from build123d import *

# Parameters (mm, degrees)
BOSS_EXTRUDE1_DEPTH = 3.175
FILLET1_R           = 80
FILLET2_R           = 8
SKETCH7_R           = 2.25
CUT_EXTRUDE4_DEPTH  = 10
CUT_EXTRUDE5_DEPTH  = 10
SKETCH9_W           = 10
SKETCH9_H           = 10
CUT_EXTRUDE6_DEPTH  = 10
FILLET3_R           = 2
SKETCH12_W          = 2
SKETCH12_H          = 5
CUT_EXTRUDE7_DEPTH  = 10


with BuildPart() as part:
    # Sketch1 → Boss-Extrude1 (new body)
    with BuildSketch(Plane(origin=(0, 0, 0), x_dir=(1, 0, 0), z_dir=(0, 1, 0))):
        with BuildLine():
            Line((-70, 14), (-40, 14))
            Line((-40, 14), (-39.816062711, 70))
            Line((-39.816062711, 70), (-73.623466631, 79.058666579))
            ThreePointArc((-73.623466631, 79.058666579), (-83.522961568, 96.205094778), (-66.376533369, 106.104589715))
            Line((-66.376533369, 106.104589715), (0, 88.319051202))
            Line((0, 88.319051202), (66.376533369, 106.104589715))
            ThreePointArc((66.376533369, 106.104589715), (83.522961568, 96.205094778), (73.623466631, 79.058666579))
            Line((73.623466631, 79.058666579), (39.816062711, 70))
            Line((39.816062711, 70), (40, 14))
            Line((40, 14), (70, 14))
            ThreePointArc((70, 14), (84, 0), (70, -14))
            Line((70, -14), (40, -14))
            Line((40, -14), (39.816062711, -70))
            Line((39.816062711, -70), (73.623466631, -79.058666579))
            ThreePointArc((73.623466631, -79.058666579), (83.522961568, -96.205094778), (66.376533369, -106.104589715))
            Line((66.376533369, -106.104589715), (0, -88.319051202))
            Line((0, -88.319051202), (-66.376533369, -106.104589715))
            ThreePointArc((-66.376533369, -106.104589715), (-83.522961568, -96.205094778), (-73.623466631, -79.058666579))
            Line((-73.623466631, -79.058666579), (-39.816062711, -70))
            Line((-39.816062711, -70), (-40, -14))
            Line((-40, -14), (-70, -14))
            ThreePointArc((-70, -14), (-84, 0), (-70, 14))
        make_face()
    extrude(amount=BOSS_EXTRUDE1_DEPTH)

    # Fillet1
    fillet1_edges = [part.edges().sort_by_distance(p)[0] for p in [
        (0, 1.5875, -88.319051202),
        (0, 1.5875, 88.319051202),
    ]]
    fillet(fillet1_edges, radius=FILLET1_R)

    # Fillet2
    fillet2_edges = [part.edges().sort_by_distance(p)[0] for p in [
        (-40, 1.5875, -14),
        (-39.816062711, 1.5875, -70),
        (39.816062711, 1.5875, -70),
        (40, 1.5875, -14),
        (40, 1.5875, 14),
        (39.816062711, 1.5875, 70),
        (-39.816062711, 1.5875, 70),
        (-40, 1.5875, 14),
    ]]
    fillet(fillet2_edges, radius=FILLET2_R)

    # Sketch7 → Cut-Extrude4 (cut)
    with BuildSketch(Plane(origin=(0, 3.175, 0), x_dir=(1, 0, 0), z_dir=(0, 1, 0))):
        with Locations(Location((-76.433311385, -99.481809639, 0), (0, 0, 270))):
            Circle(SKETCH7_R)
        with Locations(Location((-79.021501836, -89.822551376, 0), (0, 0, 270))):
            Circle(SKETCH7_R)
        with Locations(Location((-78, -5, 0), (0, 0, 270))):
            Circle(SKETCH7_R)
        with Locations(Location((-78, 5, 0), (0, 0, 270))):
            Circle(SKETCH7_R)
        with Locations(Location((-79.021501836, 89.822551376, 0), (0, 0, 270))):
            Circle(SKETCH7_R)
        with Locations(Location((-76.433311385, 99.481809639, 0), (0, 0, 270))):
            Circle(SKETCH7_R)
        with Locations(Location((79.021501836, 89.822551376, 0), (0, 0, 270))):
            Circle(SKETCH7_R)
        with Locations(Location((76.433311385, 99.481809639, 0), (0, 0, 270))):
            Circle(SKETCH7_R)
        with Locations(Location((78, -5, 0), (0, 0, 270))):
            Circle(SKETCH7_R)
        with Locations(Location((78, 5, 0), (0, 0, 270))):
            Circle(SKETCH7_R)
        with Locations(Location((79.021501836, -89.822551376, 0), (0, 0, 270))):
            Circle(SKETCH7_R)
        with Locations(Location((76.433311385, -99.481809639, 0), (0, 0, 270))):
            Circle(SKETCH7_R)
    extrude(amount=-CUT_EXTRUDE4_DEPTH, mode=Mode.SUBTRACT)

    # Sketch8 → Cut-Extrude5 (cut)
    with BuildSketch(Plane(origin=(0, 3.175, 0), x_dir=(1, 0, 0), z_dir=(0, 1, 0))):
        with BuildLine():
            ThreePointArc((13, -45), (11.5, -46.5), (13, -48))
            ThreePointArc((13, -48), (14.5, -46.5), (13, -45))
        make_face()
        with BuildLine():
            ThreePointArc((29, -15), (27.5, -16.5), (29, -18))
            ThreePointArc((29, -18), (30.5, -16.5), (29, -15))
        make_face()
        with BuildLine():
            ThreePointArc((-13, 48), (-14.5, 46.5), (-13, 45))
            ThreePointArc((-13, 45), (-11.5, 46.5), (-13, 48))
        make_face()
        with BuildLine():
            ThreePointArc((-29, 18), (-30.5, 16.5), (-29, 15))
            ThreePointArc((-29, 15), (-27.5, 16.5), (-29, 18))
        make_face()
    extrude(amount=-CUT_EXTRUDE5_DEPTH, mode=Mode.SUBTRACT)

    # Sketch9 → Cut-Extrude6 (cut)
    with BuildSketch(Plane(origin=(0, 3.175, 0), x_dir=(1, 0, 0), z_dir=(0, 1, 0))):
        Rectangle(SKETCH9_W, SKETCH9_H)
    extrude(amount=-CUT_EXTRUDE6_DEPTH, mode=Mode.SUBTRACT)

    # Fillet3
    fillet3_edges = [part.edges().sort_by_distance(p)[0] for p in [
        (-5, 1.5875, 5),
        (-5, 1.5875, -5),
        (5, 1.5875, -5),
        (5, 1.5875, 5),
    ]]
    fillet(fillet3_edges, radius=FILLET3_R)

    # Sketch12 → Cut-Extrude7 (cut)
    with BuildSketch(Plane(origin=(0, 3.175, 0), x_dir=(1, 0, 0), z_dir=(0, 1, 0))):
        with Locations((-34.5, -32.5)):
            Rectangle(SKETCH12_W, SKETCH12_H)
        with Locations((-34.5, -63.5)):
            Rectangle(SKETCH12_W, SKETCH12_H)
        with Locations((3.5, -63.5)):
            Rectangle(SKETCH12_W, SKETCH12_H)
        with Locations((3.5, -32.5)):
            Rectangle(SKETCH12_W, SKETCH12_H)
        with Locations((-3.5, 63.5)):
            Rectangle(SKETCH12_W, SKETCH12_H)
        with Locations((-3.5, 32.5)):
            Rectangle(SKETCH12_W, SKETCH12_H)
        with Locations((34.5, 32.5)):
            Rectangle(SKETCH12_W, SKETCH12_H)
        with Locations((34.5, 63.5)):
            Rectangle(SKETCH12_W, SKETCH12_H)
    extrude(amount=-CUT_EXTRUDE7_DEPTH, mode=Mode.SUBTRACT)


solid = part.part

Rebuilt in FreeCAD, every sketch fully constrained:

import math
import FreeCAD as App
import Part
import Sketcher
Q = App.Units.Quantity


def edges_at(feature, points):
    """Names of the edges that pass closest to the given points."""
    edges = feature.Shape.Edges
    near = lambda p: min(range(len(edges)), key=lambda i: edges[i].distToShape(Part.Vertex(*p))[0])
    return sorted({f"Edge{near(p) + 1}" for p in points})

doc = App.newDocument("Part")
params = doc.addObject("Spreadsheet::Sheet", "Params")
for row, (alias, value) in enumerate([
    ("sketch1_radius", "14 mm"),
    ("sketch1_width", "30 mm"),
    ("sketch1_length", "35 mm"),
    ("pad1_length", "3.175 mm"),
    ("fillet_radius", "80 mm"),
    ("fillet2_radius", "8 mm"),
    ("sketch2_diameter", "4.5 mm"),
    ("pocket1_length", "10 mm"),
    ("sketch3_diameter", "3 mm"),
    ("pocket2_length", "10 mm"),
    ("sketch4_width", "10 mm"),
    ("pocket3_length", "10 mm"),
    ("fillet3_radius", "2 mm"),
    ("sketch5_width", "2 mm"),
    ("sketch5_height", "5 mm"),
    ("pocket4_length", "10 mm"),
], start=1):
    params.set(f"A{row}", alias)
    params.set(f"B{row}", "=" + value)
    params.setAlias(f"B{row}", alias)

body = doc.addObject("PartDesign::Body", "Body")

# Sketch on XZ plane
sketch1 = doc.addObject("Sketcher::SketchObject", "Sketch")
body.addObject(sketch1)
sketch1.AttachmentSupport = (doc.XZ_Plane, [""])
sketch1.MapMode = "FlatFace"
sketch1.addGeometry(Part.LineSegment(App.Vector(-40, -14, 0), App.Vector(-70, -14, 0)), False)
sketch1.addGeometry(Part.ArcOfCircle(Part.Circle(App.Vector(-70, 0, 0), App.Vector(0, 0, 1), 14), math.radians(90), math.radians(270)), False)
sketch1.addGeometry(Part.LineSegment(App.Vector(-70, 14, 0), App.Vector(-40, 14, 0)), False)
sketch1.addGeometry(Part.LineSegment(App.Vector(-40, 14, 0), App.Vector(-39.816063, 70, 0)), False)
sketch1.addGeometry(Part.LineSegment(App.Vector(-39.816063, 70, 0), App.Vector(-73.623467, 79.058667, 0)), False)
sketch1.addGeometry(Part.ArcOfCircle(Part.Circle(App.Vector(-70, 92.581628, 0), App.Vector(0, 0, 1), 14), math.radians(75), math.radians(255)), False)
sketch1.addGeometry(Part.LineSegment(App.Vector(-66.376533, 106.10459, 0), App.Vector(0, 88.319051, 0)), False)
sketch1.addGeometry(Part.LineSegment(App.Vector(0, 88.319051, 0), App.Vector(66.376533, 106.10459, 0)), False)
sketch1.addGeometry(Part.ArcOfCircle(Part.Circle(App.Vector(70, 92.581628, 0), App.Vector(0, 0, 1), 14), math.radians(-75), math.radians(105)), False)
sketch1.addGeometry(Part.LineSegment(App.Vector(73.623467, 79.058667, 0), App.Vector(39.816063, 70, 0)), False)
sketch1.addGeometry(Part.LineSegment(App.Vector(39.816063, 70, 0), App.Vector(40, 14, 0)), False)
sketch1.addGeometry(Part.LineSegment(App.Vector(40, 14, 0), App.Vector(70, 14, 0)), False)
sketch1.addGeometry(Part.ArcOfCircle(Part.Circle(App.Vector(70, 0, 0), App.Vector(0, 0, 1), 14), math.radians(-90), math.radians(90)), False)
sketch1.addGeometry(Part.LineSegment(App.Vector(70, -14, 0), App.Vector(40, -14, 0)), False)
sketch1.addGeometry(Part.LineSegment(App.Vector(40, -14, 0), App.Vector(39.816063, -70, 0)), False)
sketch1.addGeometry(Part.LineSegment(App.Vector(39.816063, -70, 0), App.Vector(73.623467, -79.058667, 0)), False)
sketch1.addGeometry(Part.ArcOfCircle(Part.Circle(App.Vector(70, -92.581628, 0), App.Vector(0, 0, 1), 14), math.radians(-105), math.radians(75)), False)
sketch1.addGeometry(Part.LineSegment(App.Vector(66.376533, -106.10459, 0), App.Vector(0, -88.319051, 0)), False)
sketch1.addGeometry(Part.LineSegment(App.Vector(0, -88.319051, 0), App.Vector(-66.376533, -106.10459, 0)), False)
sketch1.addGeometry(Part.ArcOfCircle(Part.Circle(App.Vector(-70, -92.581628, 0), App.Vector(0, 0, 1), 14), math.radians(105), math.radians(285)), False)
sketch1.addGeometry(Part.LineSegment(App.Vector(-73.623467, -79.058667, 0), App.Vector(-39.816063, -70, 0)), False)
sketch1.addGeometry(Part.LineSegment(App.Vector(-39.816063, -70, 0), App.Vector(-40, -14, 0)), False)
sketch1.addConstraint(Sketcher.Constraint("Tangent", 0, 2, 1, 2))
sketch1.addConstraint(Sketcher.Constraint("Tangent", 1, 1, 2, 1))
sketch1.addConstraint(Sketcher.Constraint("Coincident", 2, 2, 3, 1))
sketch1.addConstraint(Sketcher.Constraint("Coincident", 3, 2, 4, 1))
sketch1.addConstraint(Sketcher.Constraint("Tangent", 4, 2, 5, 2))
sketch1.addConstraint(Sketcher.Constraint("Tangent", 5, 1, 6, 1))
sketch1.addConstraint(Sketcher.Constraint("Coincident", 6, 2, 7, 1))
sketch1.addConstraint(Sketcher.Constraint("Tangent", 7, 2, 8, 2))
sketch1.addConstraint(Sketcher.Constraint("Tangent", 8, 1, 9, 1))
sketch1.addConstraint(Sketcher.Constraint("Coincident", 9, 2, 10, 1))
sketch1.addConstraint(Sketcher.Constraint("Coincident", 10, 2, 11, 1))
sketch1.addConstraint(Sketcher.Constraint("Tangent", 11, 2, 12, 2))
sketch1.addConstraint(Sketcher.Constraint("Tangent", 12, 1, 13, 1))
sketch1.addConstraint(Sketcher.Constraint("Coincident", 13, 2, 14, 1))
sketch1.addConstraint(Sketcher.Constraint("Coincident", 14, 2, 15, 1))
sketch1.addConstraint(Sketcher.Constraint("Tangent", 15, 2, 16, 2))
sketch1.addConstraint(Sketcher.Constraint("Tangent", 16, 1, 17, 1))
sketch1.addConstraint(Sketcher.Constraint("Coincident", 17, 2, 18, 1))
sketch1.addConstraint(Sketcher.Constraint("Tangent", 18, 2, 19, 2))
sketch1.addConstraint(Sketcher.Constraint("Tangent", 19, 1, 20, 1))
sketch1.addConstraint(Sketcher.Constraint("Coincident", 20, 2, 21, 1))
sketch1.addConstraint(Sketcher.Constraint("Coincident", 21, 2, 0, 1))
sketch1.addConstraint(Sketcher.Constraint("Horizontal", 0))
sketch1.addConstraint(Sketcher.Constraint("Horizontal", 2))
sketch1.addConstraint(Sketcher.Constraint("Horizontal", 11))
sketch1.addConstraint(Sketcher.Constraint("Horizontal", 13))
sketch1.addConstraint(Sketcher.Constraint("Equal", 1, 5))
sketch1.addConstraint(Sketcher.Constraint("Equal", 5, 8))
sketch1.addConstraint(Sketcher.Constraint("Equal", 8, 12))
sketch1.addConstraint(Sketcher.Constraint("Equal", 12, 16))
sketch1.addConstraint(Sketcher.Constraint("Equal", 16, 19))
sketch1.addConstraint(Sketcher.Constraint("Symmetric", 1, 3, 12, 3, -1, 1))
sketch1.addConstraint(Sketcher.Constraint("Symmetric", 5, 3, 16, 3, -1, 1))
sketch1.addConstraint(Sketcher.Constraint("Symmetric", 8, 3, 19, 3, -1, 1))
sketch1.addConstraint(Sketcher.Constraint("Symmetric", 3, 2, 14, 2, -1, 1))
sketch1.addConstraint(Sketcher.Constraint("Symmetric", 6, 2, 17, 2, -1, 1))
sketch1.addConstraint(Sketcher.Constraint("Symmetric", 9, 2, 20, 2, -1, 1))
sketch1.addConstraint(Sketcher.Constraint("Symmetric", 5, 3, 8, 3, -2))
sketch1.addConstraint(Sketcher.Constraint("Symmetric", 3, 2, 9, 2, -2))
sketch1.addConstraint(Sketcher.Constraint("Symmetric", 2, 2, 10, 2, -2))
sketch1.addConstraint(Sketcher.Constraint("PointOnObject", 6, 2, -2))
sketch1.addConstraint(Sketcher.Constraint("Parallel", 4, 6))
sketch1.addConstraint(Sketcher.Constraint("Parallel", 3, 14))
sketch1.addConstraint(Sketcher.Constraint("Parallel", 10, 21))
sketch1.addConstraint(Sketcher.Constraint("Vertical", 1, 3, 5, 3))
sketch1.addConstraint(Sketcher.Constraint("Radius", 1, 14.0))
sketch1.addConstraint(Sketcher.Constraint("DistanceX", 0, 2, 0, 1, 30.0))
sketch1.addConstraint(Sketcher.Constraint("Angle", 4, Q("165 deg")))
sketch1.addConstraint(Sketcher.Constraint("Distance", 4, 35.0))
sketch1.addConstraint(Sketcher.Constraint("DistanceX", 1, 3, -1, 1, 70.0))
sketch1.addConstraint(Sketcher.Constraint("DistanceY", -1, 1, 3, 2, 70.0))
sketch1.setExpression("Constraints[45]", "Params.sketch1_radius")
sketch1.setExpression("Constraints[46]", "Params.sketch1_width")
sketch1.setExpression("Constraints[48]", "Params.sketch1_length")
pad1 = doc.addObject("PartDesign::Pad", "Pad")
body.addObject(pad1)
pad1.Profile = sketch1
pad1.setExpression("Length", "Params.pad1_length")
pad1.Reversed = True
doc.recompute()

fillet = doc.addObject("PartDesign::Fillet", "Fillet")
body.addObject(fillet)
fillet.Base = (pad1, edges_at(pad1, [(0, 1.587, -88.319), (0, 1.587, 88.319)]))
fillet.setExpression("Radius", "Params.fillet_radius")
doc.recompute()

fillet2 = doc.addObject("PartDesign::Fillet", "Fillet001")
body.addObject(fillet2)
fillet2.Base = (fillet, edges_at(fillet, [
    (-40, 1.587, -14),
    (-39.816, 1.587, -70),
    (39.816, 1.587, -70),
    (40, 1.587, -14),
    (40, 1.587, 14),
    (39.816, 1.587, 70),
    (-39.816, 1.587, 70),
    (-40, 1.587, 14),
]))
fillet2.setExpression("Radius", "Params.fillet2_radius")

# Sketch on XZ plane
sketch2 = doc.addObject("Sketcher::SketchObject", "Sketch001")
body.addObject(sketch2)
sketch2.AttachmentSupport = (doc.XZ_Plane, [""])
sketch2.MapMode = "FlatFace"
sketch2.AttachmentOffset = App.Placement(App.Vector(0, 0, -3.175), App.Rotation())
sketch2.addGeometry(Part.Circle(App.Vector(-76.433311, 99.48181, 0), App.Vector(0, 0, 1), 2.25), False)
sketch2.addGeometry(Part.Circle(App.Vector(-79.021502, 89.822551, 0), App.Vector(0, 0, 1), 2.25), False)
sketch2.addGeometry(Part.Circle(App.Vector(-78, 5, 0), App.Vector(0, 0, 1), 2.25), False)
sketch2.addGeometry(Part.Circle(App.Vector(-78, -5, 0), App.Vector(0, 0, 1), 2.25), False)
sketch2.addGeometry(Part.Circle(App.Vector(-79.021502, -89.822551, 0), App.Vector(0, 0, 1), 2.25), False)
sketch2.addGeometry(Part.Circle(App.Vector(-76.433311, -99.48181, 0), App.Vector(0, 0, 1), 2.25), False)
sketch2.addGeometry(Part.Circle(App.Vector(79.021502, -89.822551, 0), App.Vector(0, 0, 1), 2.25), False)
sketch2.addGeometry(Part.Circle(App.Vector(76.433311, -99.48181, 0), App.Vector(0, 0, 1), 2.25), False)
sketch2.addGeometry(Part.Circle(App.Vector(78, 5, 0), App.Vector(0, 0, 1), 2.25), False)
sketch2.addGeometry(Part.Circle(App.Vector(78, -5, 0), App.Vector(0, 0, 1), 2.25), False)
sketch2.addGeometry(Part.Circle(App.Vector(79.021502, 89.822551, 0), App.Vector(0, 0, 1), 2.25), False)
sketch2.addGeometry(Part.Circle(App.Vector(76.433311, 99.48181, 0), App.Vector(0, 0, 1), 2.25), False)
sketch2.addConstraint(Sketcher.Constraint("Equal", 0, 1))
sketch2.addConstraint(Sketcher.Constraint("Equal", 1, 2))
sketch2.addConstraint(Sketcher.Constraint("Equal", 2, 3))
sketch2.addConstraint(Sketcher.Constraint("Equal", 3, 4))
sketch2.addConstraint(Sketcher.Constraint("Equal", 4, 5))
sketch2.addConstraint(Sketcher.Constraint("Equal", 5, 6))
sketch2.addConstraint(Sketcher.Constraint("Equal", 6, 7))
sketch2.addConstraint(Sketcher.Constraint("Equal", 7, 8))
sketch2.addConstraint(Sketcher.Constraint("Equal", 8, 9))
sketch2.addConstraint(Sketcher.Constraint("Equal", 9, 10))
sketch2.addConstraint(Sketcher.Constraint("Equal", 10, 11))
sketch2.addConstraint(Sketcher.Constraint("Symmetric", 1, 3, 6, 3, -1, 1))
sketch2.addConstraint(Sketcher.Constraint("Symmetric", 0, 3, 7, 3, -1, 1))
sketch2.addConstraint(Sketcher.Constraint("Symmetric", 3, 3, 8, 3, -1, 1))
sketch2.addConstraint(Sketcher.Constraint("Symmetric", 2, 3, 9, 3, -1, 1))
sketch2.addConstraint(Sketcher.Constraint("Symmetric", 4, 3, 10, 3, -1, 1))
sketch2.addConstraint(Sketcher.Constraint("Symmetric", 5, 3, 11, 3, -1, 1))
sketch2.addConstraint(Sketcher.Constraint("Symmetric", 4, 3, 6, 3, -2))
sketch2.addConstraint(Sketcher.Constraint("Symmetric", 5, 3, 7, 3, -2))
sketch2.addConstraint(Sketcher.Constraint("Symmetric", 2, 3, 8, 3, -2))
sketch2.addConstraint(Sketcher.Constraint("Diameter", 0, 4.5))
sketch2.addConstraint(Sketcher.Constraint("DistanceX", 2, 3, -1, 1, 78.0))
sketch2.addConstraint(Sketcher.Constraint("DistanceY", -1, 1, 2, 3, 5.0))
sketch2.addConstraint(Sketcher.Constraint("DistanceX", 1, 3, -1, 1, 79.021502))
sketch2.addConstraint(Sketcher.Constraint("DistanceX", 0, 3, -1, 1, 76.433311))
sketch2.addConstraint(Sketcher.Constraint("DistanceY", -1, 1, 0, 3, 99.48181))
sketch2.addConstraint(Sketcher.Constraint("DistanceY", -1, 1, 1, 3, 89.822551))
sketch2.setExpression("Constraints[20]", "Params.sketch2_diameter")
pocket1 = doc.addObject("PartDesign::Pocket", "Pocket")
body.addObject(pocket1)
pocket1.Profile = sketch2
pocket1.setExpression("Length", "Params.pocket1_length")
pocket1.Reversed = True

# Sketch on XZ plane
sketch3 = doc.addObject("Sketcher::SketchObject", "Sketch002")
body.addObject(sketch3)
sketch3.AttachmentSupport = (doc.XZ_Plane, [""])
sketch3.MapMode = "FlatFace"
sketch3.AttachmentOffset = App.Placement(App.Vector(0, 0, -3.175), App.Rotation())
sketch3.addGeometry(Part.Circle(App.Vector(13, 46.5, 0), App.Vector(0, 0, 1), 1.5), False)
sketch3.addGeometry(Part.Circle(App.Vector(29, 16.5, 0), App.Vector(0, 0, 1), 1.5), False)
sketch3.addGeometry(Part.Circle(App.Vector(-13, -46.5, 0), App.Vector(0, 0, 1), 1.5), False)
sketch3.addGeometry(Part.Circle(App.Vector(-29, -16.5, 0), App.Vector(0, 0, 1), 1.5), False)
sketch3.addConstraint(Sketcher.Constraint("Equal", 0, 1))
sketch3.addConstraint(Sketcher.Constraint("Equal", 1, 2))
sketch3.addConstraint(Sketcher.Constraint("Equal", 2, 3))
sketch3.addConstraint(Sketcher.Constraint("Symmetric", 0, 3, 2, 3, -1, 1))
sketch3.addConstraint(Sketcher.Constraint("Symmetric", 1, 3, 3, 3, -1, 1))
sketch3.addConstraint(Sketcher.Constraint("Diameter", 0, 3.0))
sketch3.addConstraint(Sketcher.Constraint("DistanceX", -1, 1, 0, 3, 13.0))
sketch3.addConstraint(Sketcher.Constraint("DistanceX", -1, 1, 1, 3, 29.0))
sketch3.addConstraint(Sketcher.Constraint("DistanceY", 1, 3, 0, 3, 30.0))
sketch3.addConstraint(Sketcher.Constraint("DistanceY", 2, 3, 1, 3, 63.0))
sketch3.setExpression("Constraints[5]", "Params.sketch3_diameter")
pocket2 = doc.addObject("PartDesign::Pocket", "Pocket001")
body.addObject(pocket2)
pocket2.Profile = sketch3
pocket2.setExpression("Length", "Params.pocket2_length")
pocket2.Reversed = True

# Sketch on XZ plane
sketch4 = doc.addObject("Sketcher::SketchObject", "Sketch003")
body.addObject(sketch4)
sketch4.AttachmentSupport = (doc.XZ_Plane, [""])
sketch4.MapMode = "FlatFace"
sketch4.AttachmentOffset = App.Placement(App.Vector(0, 0, -3.175), App.Rotation())
sketch4.addGeometry(Part.LineSegment(App.Vector(-5, -5, 0), App.Vector(-5, 5, 0)), False)
sketch4.addGeometry(Part.LineSegment(App.Vector(-5, 5, 0), App.Vector(5, 5, 0)), False)
sketch4.addGeometry(Part.LineSegment(App.Vector(5, 5, 0), App.Vector(5, -5, 0)), False)
sketch4.addGeometry(Part.LineSegment(App.Vector(5, -5, 0), App.Vector(-5, -5, 0)), False)
sketch4.addConstraint(Sketcher.Constraint("Coincident", 0, 2, 1, 1))
sketch4.addConstraint(Sketcher.Constraint("Coincident", 1, 2, 2, 1))
sketch4.addConstraint(Sketcher.Constraint("Coincident", 2, 2, 3, 1))
sketch4.addConstraint(Sketcher.Constraint("Coincident", 3, 2, 0, 1))
sketch4.addConstraint(Sketcher.Constraint("Vertical", 0))
sketch4.addConstraint(Sketcher.Constraint("Horizontal", 1))
sketch4.addConstraint(Sketcher.Constraint("Vertical", 2))
sketch4.addConstraint(Sketcher.Constraint("Horizontal", 3))
sketch4.addConstraint(Sketcher.Constraint("Symmetric", 0, 2, 2, 2, -1, 1))
sketch4.addConstraint(Sketcher.Constraint("Equal", 3, 0))
sketch4.addConstraint(Sketcher.Constraint("DistanceX", 1, 1, 1, 2, 10.0))
sketch4.setExpression("Constraints[10]", "Params.sketch4_width")
pocket3 = doc.addObject("PartDesign::Pocket", "Pocket002")
body.addObject(pocket3)
pocket3.Profile = sketch4
pocket3.setExpression("Length", "Params.pocket3_length")
pocket3.Reversed = True
doc.recompute()

fillet3 = doc.addObject("PartDesign::Fillet", "Fillet002")
body.addObject(fillet3)
fillet3.Base = (pocket3, edges_at(pocket3, [
    (-5, 1.587, 5),
    (-5, 1.587, -5),
    (5, 1.587, -5),
    (5, 1.587, 5),
]))
fillet3.setExpression("Radius", "Params.fillet3_radius")

# Sketch on XZ plane
sketch5 = doc.addObject("Sketcher::SketchObject", "Sketch004")
body.addObject(sketch5)
sketch5.AttachmentSupport = (doc.XZ_Plane, [""])
sketch5.MapMode = "FlatFace"
sketch5.AttachmentOffset = App.Placement(App.Vector(0, 0, -3.175), App.Rotation())
sketch5.addGeometry(Part.LineSegment(App.Vector(-35.5, 30, 0), App.Vector(-35.5, 35, 0)), False)
sketch5.addGeometry(Part.LineSegment(App.Vector(-35.5, 35, 0), App.Vector(-33.5, 35, 0)), False)
sketch5.addGeometry(Part.LineSegment(App.Vector(-33.5, 35, 0), App.Vector(-33.5, 30, 0)), False)
sketch5.addGeometry(Part.LineSegment(App.Vector(-33.5, 30, 0), App.Vector(-35.5, 30, 0)), False)
sketch5.addGeometry(Part.LineSegment(App.Vector(-35.5, 61, 0), App.Vector(-35.5, 66, 0)), False)
sketch5.addGeometry(Part.LineSegment(App.Vector(-35.5, 66, 0), App.Vector(-33.5, 66, 0)), False)
sketch5.addGeometry(Part.LineSegment(App.Vector(-33.5, 66, 0), App.Vector(-33.5, 61, 0)), False)
sketch5.addGeometry(Part.LineSegment(App.Vector(-33.5, 61, 0), App.Vector(-35.5, 61, 0)), False)
sketch5.addGeometry(Part.LineSegment(App.Vector(2.5, 61, 0), App.Vector(2.5, 66, 0)), False)
sketch5.addGeometry(Part.LineSegment(App.Vector(2.5, 66, 0), App.Vector(4.5, 66, 0)), False)
sketch5.addGeometry(Part.LineSegment(App.Vector(4.5, 66, 0), App.Vector(4.5, 61, 0)), False)
sketch5.addGeometry(Part.LineSegment(App.Vector(4.5, 61, 0), App.Vector(2.5, 61, 0)), False)
sketch5.addGeometry(Part.LineSegment(App.Vector(2.5, 30, 0), App.Vector(2.5, 35, 0)), False)
sketch5.addGeometry(Part.LineSegment(App.Vector(2.5, 35, 0), App.Vector(4.5, 35, 0)), False)
sketch5.addGeometry(Part.LineSegment(App.Vector(4.5, 35, 0), App.Vector(4.5, 30, 0)), False)
sketch5.addGeometry(Part.LineSegment(App.Vector(4.5, 30, 0), App.Vector(2.5, 30, 0)), False)
sketch5.addGeometry(Part.LineSegment(App.Vector(-4.5, -66, 0), App.Vector(-4.5, -61, 0)), False)
sketch5.addGeometry(Part.LineSegment(App.Vector(-4.5, -61, 0), App.Vector(-2.5, -61, 0)), False)
sketch5.addGeometry(Part.LineSegment(App.Vector(-2.5, -61, 0), App.Vector(-2.5, -66, 0)), False)
sketch5.addGeometry(Part.LineSegment(App.Vector(-2.5, -66, 0), App.Vector(-4.5, -66, 0)), False)
sketch5.addGeometry(Part.LineSegment(App.Vector(-4.5, -35, 0), App.Vector(-4.5, -30, 0)), False)
sketch5.addGeometry(Part.LineSegment(App.Vector(-4.5, -30, 0), App.Vector(-2.5, -30, 0)), False)
sketch5.addGeometry(Part.LineSegment(App.Vector(-2.5, -30, 0), App.Vector(-2.5, -35, 0)), False)
sketch5.addGeometry(Part.LineSegment(App.Vector(-2.5, -35, 0), App.Vector(-4.5, -35, 0)), False)
sketch5.addGeometry(Part.LineSegment(App.Vector(33.5, -35, 0), App.Vector(33.5, -30, 0)), False)
sketch5.addGeometry(Part.LineSegment(App.Vector(33.5, -30, 0), App.Vector(35.5, -30, 0)), False)
sketch5.addGeometry(Part.LineSegment(App.Vector(35.5, -30, 0), App.Vector(35.5, -35, 0)), False)
sketch5.addGeometry(Part.LineSegment(App.Vector(35.5, -35, 0), App.Vector(33.5, -35, 0)), False)
sketch5.addGeometry(Part.LineSegment(App.Vector(33.5, -66, 0), App.Vector(33.5, -61, 0)), False)
sketch5.addGeometry(Part.LineSegment(App.Vector(33.5, -61, 0), App.Vector(35.5, -61, 0)), False)
sketch5.addGeometry(Part.LineSegment(App.Vector(35.5, -61, 0), App.Vector(35.5, -66, 0)), False)
sketch5.addGeometry(Part.LineSegment(App.Vector(35.5, -66, 0), App.Vector(33.5, -66, 0)), False)
sketch5.addConstraint(Sketcher.Constraint("Coincident", 0, 2, 1, 1))
sketch5.addConstraint(Sketcher.Constraint("Coincident", 1, 2, 2, 1))
sketch5.addConstraint(Sketcher.Constraint("Coincident", 2, 2, 3, 1))
sketch5.addConstraint(Sketcher.Constraint("Coincident", 3, 2, 0, 1))
sketch5.addConstraint(Sketcher.Constraint("Coincident", 4, 2, 5, 1))
sketch5.addConstraint(Sketcher.Constraint("Coincident", 5, 2, 6, 1))
sketch5.addConstraint(Sketcher.Constraint("Coincident", 6, 2, 7, 1))
sketch5.addConstraint(Sketcher.Constraint("Coincident", 7, 2, 4, 1))
sketch5.addConstraint(Sketcher.Constraint("Coincident", 8, 2, 9, 1))
sketch5.addConstraint(Sketcher.Constraint("Coincident", 9, 2, 10, 1))
sketch5.addConstraint(Sketcher.Constraint("Coincident", 10, 2, 11, 1))
sketch5.addConstraint(Sketcher.Constraint("Coincident", 11, 2, 8, 1))
sketch5.addConstraint(Sketcher.Constraint("Coincident", 12, 2, 13, 1))
sketch5.addConstraint(Sketcher.Constraint("Coincident", 13, 2, 14, 1))
sketch5.addConstraint(Sketcher.Constraint("Coincident", 14, 2, 15, 1))
sketch5.addConstraint(Sketcher.Constraint("Coincident", 15, 2, 12, 1))
sketch5.addConstraint(Sketcher.Constraint("Coincident", 16, 2, 17, 1))
sketch5.addConstraint(Sketcher.Constraint("Coincident", 17, 2, 18, 1))
sketch5.addConstraint(Sketcher.Constraint("Coincident", 18, 2, 19, 1))
sketch5.addConstraint(Sketcher.Constraint("Coincident", 19, 2, 16, 1))
sketch5.addConstraint(Sketcher.Constraint("Coincident", 20, 2, 21, 1))
sketch5.addConstraint(Sketcher.Constraint("Coincident", 21, 2, 22, 1))
sketch5.addConstraint(Sketcher.Constraint("Coincident", 22, 2, 23, 1))
sketch5.addConstraint(Sketcher.Constraint("Coincident", 23, 2, 20, 1))
sketch5.addConstraint(Sketcher.Constraint("Coincident", 24, 2, 25, 1))
sketch5.addConstraint(Sketcher.Constraint("Coincident", 25, 2, 26, 1))
sketch5.addConstraint(Sketcher.Constraint("Coincident", 26, 2, 27, 1))
sketch5.addConstraint(Sketcher.Constraint("Coincident", 27, 2, 24, 1))
sketch5.addConstraint(Sketcher.Constraint("Coincident", 28, 2, 29, 1))
sketch5.addConstraint(Sketcher.Constraint("Coincident", 29, 2, 30, 1))
sketch5.addConstraint(Sketcher.Constraint("Coincident", 30, 2, 31, 1))
sketch5.addConstraint(Sketcher.Constraint("Coincident", 31, 2, 28, 1))
sketch5.addConstraint(Sketcher.Constraint("Vertical", 0))
sketch5.addConstraint(Sketcher.Constraint("Horizontal", 1))
sketch5.addConstraint(Sketcher.Constraint("Vertical", 2))
sketch5.addConstraint(Sketcher.Constraint("Horizontal", 3))
sketch5.addConstraint(Sketcher.Constraint("Vertical", 4))
sketch5.addConstraint(Sketcher.Constraint("Horizontal", 5))
sketch5.addConstraint(Sketcher.Constraint("Vertical", 6))
sketch5.addConstraint(Sketcher.Constraint("Horizontal", 7))
sketch5.addConstraint(Sketcher.Constraint("Vertical", 8))
sketch5.addConstraint(Sketcher.Constraint("Horizontal", 9))
sketch5.addConstraint(Sketcher.Constraint("Vertical", 10))
sketch5.addConstraint(Sketcher.Constraint("Horizontal", 11))
sketch5.addConstraint(Sketcher.Constraint("Vertical", 12))
sketch5.addConstraint(Sketcher.Constraint("Horizontal", 13))
sketch5.addConstraint(Sketcher.Constraint("Vertical", 14))
sketch5.addConstraint(Sketcher.Constraint("Horizontal", 15))
sketch5.addConstraint(Sketcher.Constraint("Vertical", 16))
sketch5.addConstraint(Sketcher.Constraint("Horizontal", 17))
sketch5.addConstraint(Sketcher.Constraint("Vertical", 18))
sketch5.addConstraint(Sketcher.Constraint("Horizontal", 19))
sketch5.addConstraint(Sketcher.Constraint("Vertical", 20))
sketch5.addConstraint(Sketcher.Constraint("Horizontal", 21))
sketch5.addConstraint(Sketcher.Constraint("Vertical", 22))
sketch5.addConstraint(Sketcher.Constraint("Horizontal", 23))
sketch5.addConstraint(Sketcher.Constraint("Vertical", 24))
sketch5.addConstraint(Sketcher.Constraint("Horizontal", 25))
sketch5.addConstraint(Sketcher.Constraint("Vertical", 26))
sketch5.addConstraint(Sketcher.Constraint("Horizontal", 27))
sketch5.addConstraint(Sketcher.Constraint("Vertical", 28))
sketch5.addConstraint(Sketcher.Constraint("Horizontal", 29))
sketch5.addConstraint(Sketcher.Constraint("Vertical", 30))
sketch5.addConstraint(Sketcher.Constraint("Horizontal", 31))
sketch5.addConstraint(Sketcher.Constraint("Symmetric", 10, 2, 16, 2, -1, 1))
sketch5.addConstraint(Sketcher.Constraint("Symmetric", 8, 2, 18, 2, -1, 1))
sketch5.addConstraint(Sketcher.Constraint("Symmetric", 14, 2, 20, 2, -1, 1))
sketch5.addConstraint(Sketcher.Constraint("Symmetric", 12, 2, 22, 2, -1, 1))
sketch5.addConstraint(Sketcher.Constraint("Symmetric", 2, 2, 24, 2, -1, 1))
sketch5.addConstraint(Sketcher.Constraint("Symmetric", 0, 2, 26, 2, -1, 1))
sketch5.addConstraint(Sketcher.Constraint("Symmetric", 6, 2, 28, 2, -1, 1))
sketch5.addConstraint(Sketcher.Constraint("Symmetric", 4, 2, 30, 2, -1, 1))
sketch5.addConstraint(Sketcher.Constraint("Horizontal", 5, 2, 8, 2))
sketch5.addConstraint(Sketcher.Constraint("Horizontal", 7, 2, 10, 2))
sketch5.addConstraint(Sketcher.Constraint("Horizontal", 1, 2, 12, 2))
sketch5.addConstraint(Sketcher.Constraint("Horizontal", 3, 2, 14, 2))
sketch5.addConstraint(Sketcher.Constraint("Vertical", 3, 2, 4, 2))
sketch5.addConstraint(Sketcher.Constraint("Vertical", 2, 2, 5, 2))
sketch5.addConstraint(Sketcher.Constraint("Vertical", 11, 2, 12, 2))
sketch5.addConstraint(Sketcher.Constraint("Vertical", 10, 2, 13, 2))
sketch5.addConstraint(Sketcher.Constraint("Equal", 7, 9))
sketch5.addConstraint(Sketcher.Constraint("Equal", 2, 4))
sketch5.addConstraint(Sketcher.Constraint("DistanceX", 1, 1, 1, 2, 2.0))
sketch5.addConstraint(Sketcher.Constraint("DistanceY", 0, 1, 0, 2, 5.0))
sketch5.addConstraint(Sketcher.Constraint("DistanceY", -1, 1, 0, 2, 35.0))
sketch5.addConstraint(Sketcher.Constraint("DistanceY", -1, 1, 4, 2, 66.0))
sketch5.addConstraint(Sketcher.Constraint("DistanceX", 5, 2, 8, 2, 36.0))
sketch5.addConstraint(Sketcher.Constraint("DistanceX", 16, 2, 15, 2, 7.0))
sketch5.setExpression("Constraints[82]", "Params.sketch5_width")
sketch5.setExpression("Constraints[83]", "Params.sketch5_height")
pocket4 = doc.addObject("PartDesign::Pocket", "Pocket003")
body.addObject(pocket4)
pocket4.Profile = sketch5
pocket4.setExpression("Length", "Params.pocket4_length")
pocket4.Reversed = True

doc.recompute()
